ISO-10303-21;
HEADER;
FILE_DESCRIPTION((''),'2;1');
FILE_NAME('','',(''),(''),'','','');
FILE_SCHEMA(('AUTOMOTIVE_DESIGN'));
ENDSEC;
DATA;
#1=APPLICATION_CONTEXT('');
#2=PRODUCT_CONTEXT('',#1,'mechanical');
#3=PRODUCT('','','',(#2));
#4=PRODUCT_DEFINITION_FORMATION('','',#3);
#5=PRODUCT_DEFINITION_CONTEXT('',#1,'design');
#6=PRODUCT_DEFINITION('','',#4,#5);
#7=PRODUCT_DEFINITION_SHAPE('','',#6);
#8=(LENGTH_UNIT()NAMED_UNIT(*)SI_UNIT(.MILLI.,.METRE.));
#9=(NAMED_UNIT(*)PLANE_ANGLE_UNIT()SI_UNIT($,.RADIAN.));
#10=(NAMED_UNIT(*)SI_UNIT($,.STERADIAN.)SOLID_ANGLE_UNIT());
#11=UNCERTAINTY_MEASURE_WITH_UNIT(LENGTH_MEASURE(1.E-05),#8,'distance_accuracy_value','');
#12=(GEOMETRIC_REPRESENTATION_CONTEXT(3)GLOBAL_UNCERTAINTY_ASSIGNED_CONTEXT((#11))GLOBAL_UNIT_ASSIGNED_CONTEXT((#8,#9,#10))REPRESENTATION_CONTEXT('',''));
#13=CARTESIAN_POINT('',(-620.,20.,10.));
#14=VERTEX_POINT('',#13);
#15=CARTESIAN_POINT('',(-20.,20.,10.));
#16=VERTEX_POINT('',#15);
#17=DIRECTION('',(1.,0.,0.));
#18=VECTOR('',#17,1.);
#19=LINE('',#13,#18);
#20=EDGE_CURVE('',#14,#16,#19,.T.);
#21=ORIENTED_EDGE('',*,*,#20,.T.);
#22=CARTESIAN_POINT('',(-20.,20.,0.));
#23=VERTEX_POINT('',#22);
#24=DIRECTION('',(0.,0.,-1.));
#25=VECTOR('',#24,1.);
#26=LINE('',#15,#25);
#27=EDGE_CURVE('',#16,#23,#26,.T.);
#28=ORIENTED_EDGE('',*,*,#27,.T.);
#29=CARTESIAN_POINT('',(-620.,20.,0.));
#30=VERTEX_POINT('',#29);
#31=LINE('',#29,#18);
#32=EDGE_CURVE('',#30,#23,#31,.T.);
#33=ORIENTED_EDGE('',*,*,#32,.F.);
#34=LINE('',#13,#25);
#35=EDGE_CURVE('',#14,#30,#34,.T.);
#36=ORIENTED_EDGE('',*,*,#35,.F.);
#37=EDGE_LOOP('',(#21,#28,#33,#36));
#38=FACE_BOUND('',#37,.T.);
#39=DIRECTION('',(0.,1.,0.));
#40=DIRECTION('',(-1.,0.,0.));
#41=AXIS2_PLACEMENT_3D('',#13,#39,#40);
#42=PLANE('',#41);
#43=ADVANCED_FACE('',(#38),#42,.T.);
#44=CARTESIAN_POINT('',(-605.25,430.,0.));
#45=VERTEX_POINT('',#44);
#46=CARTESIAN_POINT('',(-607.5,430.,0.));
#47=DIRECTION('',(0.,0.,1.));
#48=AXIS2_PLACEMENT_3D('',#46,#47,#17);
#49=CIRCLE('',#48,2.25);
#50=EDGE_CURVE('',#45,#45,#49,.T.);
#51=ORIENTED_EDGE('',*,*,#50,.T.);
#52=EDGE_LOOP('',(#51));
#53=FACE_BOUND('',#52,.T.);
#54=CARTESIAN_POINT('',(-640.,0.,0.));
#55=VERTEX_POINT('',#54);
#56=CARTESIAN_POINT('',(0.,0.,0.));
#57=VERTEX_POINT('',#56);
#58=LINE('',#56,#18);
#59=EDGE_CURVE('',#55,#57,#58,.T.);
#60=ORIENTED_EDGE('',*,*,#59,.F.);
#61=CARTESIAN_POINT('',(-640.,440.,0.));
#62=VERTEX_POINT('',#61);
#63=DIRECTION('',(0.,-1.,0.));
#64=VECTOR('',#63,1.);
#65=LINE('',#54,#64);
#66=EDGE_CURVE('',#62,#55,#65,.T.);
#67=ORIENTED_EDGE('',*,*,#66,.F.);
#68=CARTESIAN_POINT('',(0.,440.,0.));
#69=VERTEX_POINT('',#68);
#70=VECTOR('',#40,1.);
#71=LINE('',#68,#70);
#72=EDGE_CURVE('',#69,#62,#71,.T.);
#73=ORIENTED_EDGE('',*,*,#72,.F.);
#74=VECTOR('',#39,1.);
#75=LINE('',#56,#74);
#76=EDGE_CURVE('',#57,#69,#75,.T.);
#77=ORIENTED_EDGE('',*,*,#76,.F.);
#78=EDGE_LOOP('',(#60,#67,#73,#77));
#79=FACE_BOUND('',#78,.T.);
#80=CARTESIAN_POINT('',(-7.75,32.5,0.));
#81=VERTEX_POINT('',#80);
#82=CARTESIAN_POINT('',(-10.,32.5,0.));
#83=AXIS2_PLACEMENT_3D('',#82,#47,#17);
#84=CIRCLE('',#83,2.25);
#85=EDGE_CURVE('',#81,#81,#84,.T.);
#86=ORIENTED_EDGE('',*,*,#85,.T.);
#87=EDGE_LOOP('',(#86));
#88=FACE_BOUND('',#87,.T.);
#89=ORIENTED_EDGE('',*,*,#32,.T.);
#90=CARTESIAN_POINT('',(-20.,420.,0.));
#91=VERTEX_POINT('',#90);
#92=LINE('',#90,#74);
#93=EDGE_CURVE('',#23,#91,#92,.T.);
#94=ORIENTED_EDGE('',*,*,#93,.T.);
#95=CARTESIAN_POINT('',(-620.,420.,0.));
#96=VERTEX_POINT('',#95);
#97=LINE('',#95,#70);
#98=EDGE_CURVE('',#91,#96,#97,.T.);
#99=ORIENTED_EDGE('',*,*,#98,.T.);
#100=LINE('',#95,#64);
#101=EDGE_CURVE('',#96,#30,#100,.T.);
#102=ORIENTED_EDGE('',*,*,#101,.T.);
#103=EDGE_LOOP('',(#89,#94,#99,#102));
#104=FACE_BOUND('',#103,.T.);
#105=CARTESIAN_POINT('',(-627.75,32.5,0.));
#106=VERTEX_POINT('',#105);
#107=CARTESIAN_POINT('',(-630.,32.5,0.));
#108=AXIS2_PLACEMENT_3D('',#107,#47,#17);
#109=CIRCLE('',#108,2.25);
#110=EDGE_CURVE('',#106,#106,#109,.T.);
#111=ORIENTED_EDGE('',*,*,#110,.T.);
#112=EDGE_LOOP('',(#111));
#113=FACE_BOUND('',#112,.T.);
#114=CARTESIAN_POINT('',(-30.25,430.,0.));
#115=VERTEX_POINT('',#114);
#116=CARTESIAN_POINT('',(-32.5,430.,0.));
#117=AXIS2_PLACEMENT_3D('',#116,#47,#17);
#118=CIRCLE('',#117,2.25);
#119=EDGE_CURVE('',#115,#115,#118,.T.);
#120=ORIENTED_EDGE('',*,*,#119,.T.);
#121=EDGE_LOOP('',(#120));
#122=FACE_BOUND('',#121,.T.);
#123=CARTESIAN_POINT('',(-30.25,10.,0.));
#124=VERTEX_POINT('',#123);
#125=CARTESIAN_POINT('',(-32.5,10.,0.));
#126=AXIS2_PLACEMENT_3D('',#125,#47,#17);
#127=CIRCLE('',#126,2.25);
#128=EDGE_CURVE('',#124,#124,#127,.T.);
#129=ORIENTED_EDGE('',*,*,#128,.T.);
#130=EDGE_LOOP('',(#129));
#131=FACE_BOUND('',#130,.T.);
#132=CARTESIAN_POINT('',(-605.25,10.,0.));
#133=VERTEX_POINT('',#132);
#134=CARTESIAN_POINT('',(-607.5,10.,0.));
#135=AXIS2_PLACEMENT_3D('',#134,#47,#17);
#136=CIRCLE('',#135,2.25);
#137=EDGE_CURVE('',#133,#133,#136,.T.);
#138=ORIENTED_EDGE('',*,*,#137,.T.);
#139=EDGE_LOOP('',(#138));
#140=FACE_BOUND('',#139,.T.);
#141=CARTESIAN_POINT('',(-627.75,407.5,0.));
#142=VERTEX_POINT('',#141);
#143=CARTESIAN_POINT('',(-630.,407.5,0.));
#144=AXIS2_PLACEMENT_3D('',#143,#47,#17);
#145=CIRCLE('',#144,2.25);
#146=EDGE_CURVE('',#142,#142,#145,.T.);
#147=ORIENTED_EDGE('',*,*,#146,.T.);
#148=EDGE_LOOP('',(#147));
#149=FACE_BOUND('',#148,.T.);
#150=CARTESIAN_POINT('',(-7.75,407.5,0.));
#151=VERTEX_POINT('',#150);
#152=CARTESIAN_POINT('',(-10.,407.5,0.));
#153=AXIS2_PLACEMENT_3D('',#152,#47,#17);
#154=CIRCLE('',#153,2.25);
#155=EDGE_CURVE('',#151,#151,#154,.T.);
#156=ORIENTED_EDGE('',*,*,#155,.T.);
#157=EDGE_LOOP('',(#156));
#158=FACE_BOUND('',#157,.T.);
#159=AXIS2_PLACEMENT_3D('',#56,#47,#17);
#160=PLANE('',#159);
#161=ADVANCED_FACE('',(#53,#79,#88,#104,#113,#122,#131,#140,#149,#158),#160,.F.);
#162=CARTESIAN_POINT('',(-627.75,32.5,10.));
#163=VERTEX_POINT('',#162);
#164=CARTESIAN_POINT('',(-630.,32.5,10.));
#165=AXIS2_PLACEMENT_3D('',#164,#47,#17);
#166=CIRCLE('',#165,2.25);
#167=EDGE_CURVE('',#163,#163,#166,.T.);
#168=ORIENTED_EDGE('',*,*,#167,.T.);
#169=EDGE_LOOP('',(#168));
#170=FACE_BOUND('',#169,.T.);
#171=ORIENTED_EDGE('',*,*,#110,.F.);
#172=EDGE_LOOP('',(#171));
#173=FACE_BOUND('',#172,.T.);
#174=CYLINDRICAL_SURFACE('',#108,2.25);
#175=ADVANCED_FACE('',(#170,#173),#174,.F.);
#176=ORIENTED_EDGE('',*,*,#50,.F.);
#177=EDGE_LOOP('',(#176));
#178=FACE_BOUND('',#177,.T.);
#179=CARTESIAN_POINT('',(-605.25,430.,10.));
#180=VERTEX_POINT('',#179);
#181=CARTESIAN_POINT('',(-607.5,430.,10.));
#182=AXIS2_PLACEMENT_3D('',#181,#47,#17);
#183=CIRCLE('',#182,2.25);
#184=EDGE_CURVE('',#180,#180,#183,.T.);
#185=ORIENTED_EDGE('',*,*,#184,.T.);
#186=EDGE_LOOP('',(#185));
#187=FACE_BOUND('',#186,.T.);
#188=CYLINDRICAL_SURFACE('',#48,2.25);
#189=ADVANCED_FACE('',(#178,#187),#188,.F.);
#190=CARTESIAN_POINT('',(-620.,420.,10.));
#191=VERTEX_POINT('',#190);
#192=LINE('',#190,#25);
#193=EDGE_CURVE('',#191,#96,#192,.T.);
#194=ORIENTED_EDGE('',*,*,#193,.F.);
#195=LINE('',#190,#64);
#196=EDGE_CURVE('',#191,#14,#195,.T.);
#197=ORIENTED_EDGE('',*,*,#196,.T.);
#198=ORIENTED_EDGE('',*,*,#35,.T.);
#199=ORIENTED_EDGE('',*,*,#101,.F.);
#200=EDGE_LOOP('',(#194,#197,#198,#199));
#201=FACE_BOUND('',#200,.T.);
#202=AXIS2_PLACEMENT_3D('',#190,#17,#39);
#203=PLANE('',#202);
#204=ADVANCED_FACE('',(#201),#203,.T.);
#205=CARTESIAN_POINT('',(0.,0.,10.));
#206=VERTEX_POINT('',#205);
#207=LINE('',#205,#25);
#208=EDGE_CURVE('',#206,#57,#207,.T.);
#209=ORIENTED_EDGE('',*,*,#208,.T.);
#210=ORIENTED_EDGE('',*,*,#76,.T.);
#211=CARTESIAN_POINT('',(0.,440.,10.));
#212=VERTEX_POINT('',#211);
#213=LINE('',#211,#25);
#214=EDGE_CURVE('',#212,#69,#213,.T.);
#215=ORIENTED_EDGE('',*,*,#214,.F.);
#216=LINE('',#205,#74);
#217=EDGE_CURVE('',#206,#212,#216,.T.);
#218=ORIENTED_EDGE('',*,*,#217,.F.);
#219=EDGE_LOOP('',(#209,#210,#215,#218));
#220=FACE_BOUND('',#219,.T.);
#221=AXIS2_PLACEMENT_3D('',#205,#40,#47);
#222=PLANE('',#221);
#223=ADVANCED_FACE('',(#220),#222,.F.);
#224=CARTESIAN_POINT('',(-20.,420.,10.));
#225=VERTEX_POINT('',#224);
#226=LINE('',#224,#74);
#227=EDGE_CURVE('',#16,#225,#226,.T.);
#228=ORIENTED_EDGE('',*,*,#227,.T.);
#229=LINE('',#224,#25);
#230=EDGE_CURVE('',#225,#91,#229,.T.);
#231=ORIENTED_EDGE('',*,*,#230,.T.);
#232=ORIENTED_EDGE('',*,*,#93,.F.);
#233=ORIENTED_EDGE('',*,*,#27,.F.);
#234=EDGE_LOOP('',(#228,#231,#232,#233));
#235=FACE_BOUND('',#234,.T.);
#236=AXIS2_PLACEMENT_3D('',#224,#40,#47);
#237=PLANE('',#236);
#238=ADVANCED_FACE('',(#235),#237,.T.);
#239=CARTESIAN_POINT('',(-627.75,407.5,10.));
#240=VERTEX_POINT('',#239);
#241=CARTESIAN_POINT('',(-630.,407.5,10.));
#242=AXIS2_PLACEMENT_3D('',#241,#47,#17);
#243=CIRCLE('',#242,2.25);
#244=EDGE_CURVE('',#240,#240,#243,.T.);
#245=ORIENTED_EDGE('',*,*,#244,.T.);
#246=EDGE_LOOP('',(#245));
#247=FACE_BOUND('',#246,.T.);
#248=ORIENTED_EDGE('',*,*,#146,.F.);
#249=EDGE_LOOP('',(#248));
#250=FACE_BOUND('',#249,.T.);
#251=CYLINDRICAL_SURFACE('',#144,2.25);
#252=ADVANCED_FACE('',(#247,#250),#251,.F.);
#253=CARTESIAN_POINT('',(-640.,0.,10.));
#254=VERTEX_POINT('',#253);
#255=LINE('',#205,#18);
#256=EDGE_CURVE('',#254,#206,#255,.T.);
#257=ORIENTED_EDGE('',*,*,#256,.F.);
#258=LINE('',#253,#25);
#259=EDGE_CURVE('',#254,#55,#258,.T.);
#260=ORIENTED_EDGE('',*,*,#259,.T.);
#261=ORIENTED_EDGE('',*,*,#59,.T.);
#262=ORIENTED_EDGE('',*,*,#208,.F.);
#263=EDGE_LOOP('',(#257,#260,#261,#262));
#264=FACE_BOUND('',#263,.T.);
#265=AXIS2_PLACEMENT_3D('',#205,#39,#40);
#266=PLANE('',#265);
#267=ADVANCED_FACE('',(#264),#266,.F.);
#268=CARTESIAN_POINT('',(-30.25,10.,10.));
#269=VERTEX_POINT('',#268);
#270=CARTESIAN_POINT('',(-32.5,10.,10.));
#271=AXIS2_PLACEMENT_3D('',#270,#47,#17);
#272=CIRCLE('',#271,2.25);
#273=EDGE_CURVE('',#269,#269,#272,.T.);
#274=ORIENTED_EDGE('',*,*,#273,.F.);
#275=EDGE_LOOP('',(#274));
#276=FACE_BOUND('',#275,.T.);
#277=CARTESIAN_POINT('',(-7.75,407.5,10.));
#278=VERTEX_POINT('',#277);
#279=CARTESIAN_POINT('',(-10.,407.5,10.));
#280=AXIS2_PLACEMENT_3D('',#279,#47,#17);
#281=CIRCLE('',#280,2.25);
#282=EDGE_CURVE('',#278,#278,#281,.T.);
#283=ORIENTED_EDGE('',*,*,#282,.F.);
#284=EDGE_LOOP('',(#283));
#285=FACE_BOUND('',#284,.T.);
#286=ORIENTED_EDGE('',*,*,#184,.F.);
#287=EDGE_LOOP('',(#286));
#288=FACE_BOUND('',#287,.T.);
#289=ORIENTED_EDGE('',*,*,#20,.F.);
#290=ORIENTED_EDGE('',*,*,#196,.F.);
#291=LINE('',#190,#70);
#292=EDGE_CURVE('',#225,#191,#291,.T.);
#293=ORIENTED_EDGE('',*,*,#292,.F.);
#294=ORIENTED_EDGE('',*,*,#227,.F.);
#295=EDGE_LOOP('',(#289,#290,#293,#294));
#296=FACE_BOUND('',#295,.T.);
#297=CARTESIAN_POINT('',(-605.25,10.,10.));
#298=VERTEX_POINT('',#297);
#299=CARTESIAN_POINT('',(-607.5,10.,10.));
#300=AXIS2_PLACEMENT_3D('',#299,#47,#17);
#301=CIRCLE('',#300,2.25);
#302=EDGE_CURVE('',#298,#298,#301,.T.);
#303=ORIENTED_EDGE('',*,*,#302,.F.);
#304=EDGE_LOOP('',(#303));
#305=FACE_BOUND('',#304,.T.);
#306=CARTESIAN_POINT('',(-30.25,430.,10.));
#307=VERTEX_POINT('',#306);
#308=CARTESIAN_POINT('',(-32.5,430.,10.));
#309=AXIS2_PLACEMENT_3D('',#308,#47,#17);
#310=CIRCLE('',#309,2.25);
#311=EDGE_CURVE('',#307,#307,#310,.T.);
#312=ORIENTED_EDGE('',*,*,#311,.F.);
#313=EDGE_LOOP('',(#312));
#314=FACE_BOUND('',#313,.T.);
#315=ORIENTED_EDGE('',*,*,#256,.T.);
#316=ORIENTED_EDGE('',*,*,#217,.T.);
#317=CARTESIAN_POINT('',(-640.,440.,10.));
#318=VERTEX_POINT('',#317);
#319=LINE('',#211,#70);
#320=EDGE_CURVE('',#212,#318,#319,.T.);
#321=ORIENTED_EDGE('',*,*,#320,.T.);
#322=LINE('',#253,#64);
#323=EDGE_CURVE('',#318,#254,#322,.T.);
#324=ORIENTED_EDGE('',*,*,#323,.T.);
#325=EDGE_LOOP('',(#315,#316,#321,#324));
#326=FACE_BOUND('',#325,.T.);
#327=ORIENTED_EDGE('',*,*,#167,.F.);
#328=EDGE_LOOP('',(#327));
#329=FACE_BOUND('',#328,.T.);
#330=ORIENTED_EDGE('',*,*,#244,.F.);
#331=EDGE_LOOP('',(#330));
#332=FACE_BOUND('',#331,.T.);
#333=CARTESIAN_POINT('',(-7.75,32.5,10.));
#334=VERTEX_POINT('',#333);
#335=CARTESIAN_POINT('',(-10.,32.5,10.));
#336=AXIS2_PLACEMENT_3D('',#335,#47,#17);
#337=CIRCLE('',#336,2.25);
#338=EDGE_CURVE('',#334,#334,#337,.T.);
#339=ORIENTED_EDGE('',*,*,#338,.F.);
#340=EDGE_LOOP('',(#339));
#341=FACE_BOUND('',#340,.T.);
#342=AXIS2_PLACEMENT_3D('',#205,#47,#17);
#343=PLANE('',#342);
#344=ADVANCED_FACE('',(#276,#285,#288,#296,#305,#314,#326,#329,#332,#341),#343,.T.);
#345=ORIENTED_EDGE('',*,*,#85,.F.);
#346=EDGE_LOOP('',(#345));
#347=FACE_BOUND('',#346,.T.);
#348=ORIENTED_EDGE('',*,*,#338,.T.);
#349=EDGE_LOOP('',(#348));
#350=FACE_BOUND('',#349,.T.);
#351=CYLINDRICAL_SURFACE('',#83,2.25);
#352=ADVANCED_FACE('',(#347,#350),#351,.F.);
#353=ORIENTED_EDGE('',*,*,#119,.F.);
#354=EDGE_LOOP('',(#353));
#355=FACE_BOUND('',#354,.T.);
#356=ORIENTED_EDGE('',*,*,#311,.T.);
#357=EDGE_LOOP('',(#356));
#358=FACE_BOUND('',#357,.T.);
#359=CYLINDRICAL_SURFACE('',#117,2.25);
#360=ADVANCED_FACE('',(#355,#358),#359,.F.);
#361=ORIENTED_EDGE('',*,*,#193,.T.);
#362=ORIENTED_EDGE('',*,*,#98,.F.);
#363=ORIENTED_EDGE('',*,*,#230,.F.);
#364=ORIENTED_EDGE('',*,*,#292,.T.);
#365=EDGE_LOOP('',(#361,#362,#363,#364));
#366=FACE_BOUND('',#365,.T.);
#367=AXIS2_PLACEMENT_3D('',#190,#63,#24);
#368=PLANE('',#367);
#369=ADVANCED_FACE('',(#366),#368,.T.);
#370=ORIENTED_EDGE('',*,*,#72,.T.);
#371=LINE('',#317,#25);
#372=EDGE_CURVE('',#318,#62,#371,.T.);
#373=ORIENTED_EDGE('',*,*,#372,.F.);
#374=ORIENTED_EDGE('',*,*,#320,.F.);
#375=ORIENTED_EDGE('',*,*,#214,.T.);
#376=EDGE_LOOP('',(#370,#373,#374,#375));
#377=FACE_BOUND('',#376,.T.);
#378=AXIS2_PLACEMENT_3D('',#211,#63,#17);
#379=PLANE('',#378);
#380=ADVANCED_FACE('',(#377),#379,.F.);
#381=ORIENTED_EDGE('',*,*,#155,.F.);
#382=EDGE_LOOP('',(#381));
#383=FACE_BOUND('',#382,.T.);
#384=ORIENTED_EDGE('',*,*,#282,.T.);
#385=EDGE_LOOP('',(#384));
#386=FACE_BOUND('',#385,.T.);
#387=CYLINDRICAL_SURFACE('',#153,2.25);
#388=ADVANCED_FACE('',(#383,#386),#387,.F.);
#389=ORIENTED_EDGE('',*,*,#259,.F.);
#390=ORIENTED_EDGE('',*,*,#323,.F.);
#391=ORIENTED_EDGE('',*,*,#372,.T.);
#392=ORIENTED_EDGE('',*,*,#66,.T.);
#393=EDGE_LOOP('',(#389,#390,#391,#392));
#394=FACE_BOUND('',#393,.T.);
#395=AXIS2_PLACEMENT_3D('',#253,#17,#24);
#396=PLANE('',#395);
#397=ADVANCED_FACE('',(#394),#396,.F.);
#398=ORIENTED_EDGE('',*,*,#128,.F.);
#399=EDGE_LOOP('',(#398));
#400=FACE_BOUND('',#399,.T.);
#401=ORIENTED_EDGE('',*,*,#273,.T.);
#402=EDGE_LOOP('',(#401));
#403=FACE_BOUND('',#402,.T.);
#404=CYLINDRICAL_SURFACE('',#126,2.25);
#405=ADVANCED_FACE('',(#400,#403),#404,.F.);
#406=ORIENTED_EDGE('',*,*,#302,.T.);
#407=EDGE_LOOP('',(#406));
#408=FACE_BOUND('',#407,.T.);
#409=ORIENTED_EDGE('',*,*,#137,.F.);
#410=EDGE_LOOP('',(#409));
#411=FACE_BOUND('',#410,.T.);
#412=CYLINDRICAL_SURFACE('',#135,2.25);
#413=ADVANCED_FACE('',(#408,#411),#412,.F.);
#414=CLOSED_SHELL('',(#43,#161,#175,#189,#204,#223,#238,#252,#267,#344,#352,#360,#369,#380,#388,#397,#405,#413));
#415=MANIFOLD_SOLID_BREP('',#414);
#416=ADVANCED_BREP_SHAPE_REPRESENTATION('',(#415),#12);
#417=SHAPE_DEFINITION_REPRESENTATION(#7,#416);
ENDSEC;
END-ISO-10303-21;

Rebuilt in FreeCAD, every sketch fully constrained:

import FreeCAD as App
import Part
import Sketcher
from FreeCAD import Vector
Q = App.Units.Quantity

doc = App.newDocument("Part")
body = doc.addObject("PartDesign::Body", "Body")

# Sketch on XY plane
sketch1 = body.newObject("Sketcher::SketchObject", "Sketch")
sketch1.AttachmentSupport = (doc.getObject("XY_Plane"), [""])
sketch1.MapMode = "FlatFace"
sketch1.addGeometry([
    Part.LineSegment(Vector(-640, 440, 0), Vector(-640, 0, 0)),  # 0
    Part.LineSegment(Vector(-640, 0, 0), Vector(0, 0, 0)),  # 1
    Part.LineSegment(Vector(0, 0, 0), Vector(0, 440, 0)),  # 2
    Part.LineSegment(Vector(0, 440, 0), Vector(-640, 440, 0)),  # 3
    Part.LineSegment(Vector(-20, 20, 0), Vector(-620, 20, 0)),  # 4
    Part.LineSegment(Vector(-620, 20, 0), Vector(-620, 420, 0)),  # 5
    Part.LineSegment(Vector(-620, 420, 0), Vector(-20, 420, 0)),  # 6
    Part.LineSegment(Vector(-20, 420, 0), Vector(-20, 20, 0)),  # 7
], False)
sketch1.addConstraint([
    Sketcher.Constraint("Coincident", 0, 2, 1, 1),
    Sketcher.Constraint("Coincident", 1, 2, 2, 1),
    Sketcher.Constraint("Coincident", 2, 2, 3, 1),
    Sketcher.Constraint("Coincident", 3, 2, 0, 1),
    Sketcher.Constraint("Coincident", 4, 2, 5, 1),
    Sketcher.Constraint("Coincident", 5, 2, 6, 1),
    Sketcher.Constraint("Coincident", 6, 2, 7, 1),
    Sketcher.Constraint("Coincident", 7, 2, 4, 1),
    Sketcher.Constraint("Vertical", 0),
    Sketcher.Constraint("Horizontal", 1),
    Sketcher.Constraint("Vertical", 2),
    Sketcher.Constraint("Horizontal", 3),
    Sketcher.Constraint("Horizontal", 4),
    Sketcher.Constraint("Vertical", 5),
    Sketcher.Constraint("Horizontal", 6),
    Sketcher.Constraint("Vertical", 7),
    Sketcher.Constraint("Coincident", 1, 2, -1, 1),
    Sketcher.Constraint("DistanceX", 1, 1, 1, 2, Q("640 mm")),
    Sketcher.Constraint("DistanceX", 4, 2, 4, 1, Q("600 mm")),
    Sketcher.Constraint("DistanceY", 0, 2, 0, 1, Q("440 mm")),
    Sketcher.Constraint("DistanceY", 5, 1, 5, 2, Q("400 mm")),
    Sketcher.Constraint("DistanceX", 4, 2, -1, 1, Q("620 mm")),
    Sketcher.Constraint("DistanceY", -1, 1, 4, 2, Q("20 mm")),
])
pad1 = body.newObject("PartDesign::Pad", "Pad")
pad1.Profile = sketch1
pad1.Length = 10

# Sketch on XY plane
sketch2 = body.newObject("Sketcher::SketchObject", "Sketch001")
sketch2.AttachmentSupport = (doc.getObject("XY_Plane"), [""])
sketch2.MapMode = "FlatFace"
sketch2.AttachmentOffset = App.Placement(Vector(0, 0, 10), App.Rotation())
sketch2.addGeometry([
    Part.Circle(Vector(-32.5, 430, 0), Vector(0, 0, 1), 2.2),  # 0
    Part.Circle(Vector(-10, 407.5, 0), Vector(0, 0, 1), 2.2),  # 1
    Part.Circle(Vector(-607.5, 430, 0), Vector(0, 0, 1), 2.2),  # 2
    Part.Circle(Vector(-630, 407.5, 0), Vector(0, 0, 1), 2.2),  # 3
    Part.Circle(Vector(-630, 32.5, 0), Vector(0, 0, 1), 2.2),  # 4
    Part.Circle(Vector(-607.5, 10, 0), Vector(0, 0, 1), 2.2),  # 5
    Part.Circle(Vector(-32.5, 10, 0), Vector(0, 0, 1), 2.2),  # 6
    Part.Circle(Vector(-10, 32.5, 0), Vector(0, 0, 1), 2.2),  # 7
], False)
sketch2.addConstraint([
    Sketcher.Constraint("Equal", 0, 1),
    Sketcher.Constraint("Equal", 1, 2),
    Sketcher.Constraint("Equal", 2, 3),
    Sketcher.Constraint("Equal", 3, 4),
    Sketcher.Constraint("Equal", 4, 5),
    Sketcher.Constraint("Equal", 5, 6),
    Sketcher.Constraint("Equal", 6, 7),
    Sketcher.Constraint("Horizontal", 0, 3, 2, 3),
    Sketcher.Constraint("Horizontal", 1, 3, 3, 3),
    Sketcher.Constraint("Horizontal", 5, 3, 6, 3),
    Sketcher.Constraint("Horizontal", 4, 3, 7, 3),
    Sketcher.Constraint("Vertical", 3, 3, 4, 3),
    Sketcher.Constraint("Vertical", 2, 3, 5, 3),
    Sketcher.Constraint("Vertical", 0, 3, 6, 3),
    Sketcher.Constraint("Vertical", 1, 3, 7, 3),
    Sketcher.Constraint("Diameter", 0, Q("4.5 mm")),
    Sketcher.Constraint("DistanceY", -1, 1, 0, 3, Q("430 mm")),
    Sketcher.Constraint("DistanceX", 1, 3, -1, 1, Q("10 mm")),
    Sketcher.Constraint("DistanceX", 3, 3, -1, 1, Q("630 mm")),
    Sketcher.Constraint("DistanceY", -1, 1, 5, 3, Q("10 mm")),
    Sketcher.Constraint("DistanceX", 2, 3, 0, 3, Q("575 mm")),
    Sketcher.Constraint("DistanceY", 4, 3, 3, 3, Q("375 mm")),
    Sketcher.Constraint("DistanceX", 0, 3, -1, 1, Q("32.5 mm")),
    Sketcher.Constraint("DistanceY", -1, 1, 1, 3, Q("407.5 mm")),
])
pocket1 = body.newObject("PartDesign::Pocket", "Pocket")
pocket1.Profile = sketch2
pocket1.Type = "ThroughAll"

doc.recompute()
